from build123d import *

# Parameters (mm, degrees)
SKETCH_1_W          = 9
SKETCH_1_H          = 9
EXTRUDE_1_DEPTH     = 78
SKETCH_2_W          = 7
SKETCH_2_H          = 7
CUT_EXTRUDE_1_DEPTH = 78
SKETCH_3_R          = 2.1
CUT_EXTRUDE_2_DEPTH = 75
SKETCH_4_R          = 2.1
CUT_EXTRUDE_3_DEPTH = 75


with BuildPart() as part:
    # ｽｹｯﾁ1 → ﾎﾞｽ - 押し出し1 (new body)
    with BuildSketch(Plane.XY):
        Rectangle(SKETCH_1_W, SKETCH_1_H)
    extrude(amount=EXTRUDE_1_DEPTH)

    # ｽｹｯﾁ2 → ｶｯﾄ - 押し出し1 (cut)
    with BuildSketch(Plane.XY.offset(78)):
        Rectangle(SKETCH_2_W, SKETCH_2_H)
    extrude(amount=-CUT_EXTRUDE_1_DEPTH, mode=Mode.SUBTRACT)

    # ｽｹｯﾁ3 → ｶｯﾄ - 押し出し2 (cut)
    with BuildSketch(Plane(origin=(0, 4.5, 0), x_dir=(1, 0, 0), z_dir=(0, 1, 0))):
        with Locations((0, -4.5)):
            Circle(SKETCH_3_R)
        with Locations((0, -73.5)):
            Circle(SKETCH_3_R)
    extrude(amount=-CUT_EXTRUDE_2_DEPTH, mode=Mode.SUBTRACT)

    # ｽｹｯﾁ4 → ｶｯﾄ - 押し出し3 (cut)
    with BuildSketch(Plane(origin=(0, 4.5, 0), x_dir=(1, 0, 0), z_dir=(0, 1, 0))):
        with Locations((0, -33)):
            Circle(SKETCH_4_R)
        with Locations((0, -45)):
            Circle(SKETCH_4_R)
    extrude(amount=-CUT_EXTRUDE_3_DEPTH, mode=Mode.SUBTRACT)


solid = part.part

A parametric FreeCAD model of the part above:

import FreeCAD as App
import Part
import Sketcher
from FreeCAD import Vector


def add_polygon(sketch, points):
    """Adds a closed chain of lines whose ends are joined by coincident constraints."""
    first, n = sketch.GeometryCount, len(points)
    for a, b in zip(points, points[1:] + points[:1]):
        sketch.addGeometry(Part.LineSegment(App.Vector(*a, 0), App.Vector(*b, 0)), False)
    for i in range(n):
        sketch.addConstraint(Sketcher.Constraint("Coincident", first + i, 2, first + (i + 1) % n, 1))

doc = App.newDocument("Part")
params = doc.addObject("Spreadsheet::Sheet", "Params")
for row, (alias, value) in enumerate([
    ("sketch1_width", "9 mm"),
    ("pad1_length", "78 mm"),
    ("sketch2_width", "7 mm"),
    ("pocket1_length", "78 mm"),
    ("sketch3_diameter", "4.2 mm"),
    ("pocket2_length", "75 mm"),
    ("sketch4_diameter", "4.2 mm"),
    ("pocket3_length", "75 mm"),
], start=1):
    params.set(f"A{row}", alias)
    params.set(f"B{row}", "=" + value)
    params.setAlias(f"B{row}", alias)

body = doc.addObject("PartDesign::Body", "Body")

sketch1 = doc.addObject("Sketcher::SketchObject", "Sketch")
body.addObject(sketch1)
sketch1.AttachmentSupport = (doc.XY_Plane, [""])
sketch1.MapMode = "FlatFace"
add_polygon(sketch1, [(-4.5, 4.5), (-4.5, -4.5), (4.5, -4.5), (4.5, 4.5)])
sketch1.addConstraint([
    Sketcher.Constraint("Vertical", 0),
    Sketcher.Constraint("Horizontal", 1),
    Sketcher.Constraint("Vertical", 2),
    Sketcher.Constraint("Horizontal", 3),
    Sketcher.Constraint("Symmetric", 0, 2, 2, 2, -1, 1),
    Sketcher.Constraint("Equal", 3, 0),
    Sketcher.Constraint("DistanceX", 1, 1, 1, 2, 9.0),
])
sketch1.setExpression("Constraints[10]", "Params.sketch1_width")
pad1 = doc.addObject("PartDesign::Pad", "Pad")
body.addObject(pad1)
pad1.Profile = sketch1
pad1.setExpression("Length", "Params.pad1_length")

sketch2 = doc.addObject("Sketcher::SketchObject", "Sketch001")
body.addObject(sketch2)
sketch2.AttachmentSupport = (doc.XY_Plane, [""])
sketch2.MapMode = "FlatFace"
sketch2.AttachmentOffset = App.Placement(Vector(0, 0, 78), App.Rotation())
add_polygon(sketch2, [(-3.5, 3.5), (-3.5, -3.5), (3.5, -3.5), (3.5, 3.5)])
sketch2.addConstraint([
    Sketcher.Constraint("Vertical", 0),
    Sketcher.Constraint("Horizontal", 1),
    Sketcher.Constraint("Vertical", 2),
    Sketcher.Constraint("Horizontal", 3),
    Sketcher.Constraint("Symmetric", 0, 2, 2, 2, -1, 1),
    Sketcher.Constraint("Equal", 3, 0),
    Sketcher.Constraint("DistanceX", 1, 1, 1, 2, 7.0),
])
sketch2.setExpression("Constraints[10]", "Params.sketch2_width")
pocket1 = doc.addObject("PartDesign::Pocket", "Pocket")
body.addObject(pocket1)
pocket1.Profile = sketch2
pocket1.setExpression("Length", "Params.pocket1_length")

sketch3 = doc.addObject("Sketcher::SketchObject", "Sketch002")
body.addObject(sketch3)
sketch3.AttachmentSupport = (doc.XZ_Plane, [""])
sketch3.MapMode = "FlatFace"
sketch3.AttachmentOffset = App.Placement(Vector(0, 0, -4.5), App.Rotation())
sketch3.addGeometry([
    Part.Circle(Vector(0, 4.5, 0), Vector(0, 0, 1), 2.1),
    Part.Circle(Vector(0, 73.5, 0), Vector(0, 0, 1), 2.1),
], False)
sketch3.addConstraint([
    Sketcher.Constraint("Equal", 0, 1),
    Sketcher.Constraint("PointOnObject", 0, 3, -2),
    Sketcher.Constraint("PointOnObject", 1, 3, -2),
    Sketcher.Constraint("Diameter", 0, 4.2),
    Sketcher.Constraint("DistanceY", 0, 3, 1, 3, 69.0),
    Sketcher.Constraint("DistanceY", -1, 1, 0, 3, 4.5),
])
sketch3.setExpression("Constraints[3]", "Params.sketch3_diameter")
pocket2 = doc.addObject("PartDesign::Pocket", "Pocket001")
body.addObject(pocket2)
pocket2.Profile = sketch3
pocket2.setExpression("Length", "Params.pocket2_length")
pocket2.Reversed = True

sketch4 = doc.addObject("Sketcher::SketchObject", "Sketch003")
body.addObject(sketch4)
sketch4.AttachmentSupport = (doc.XZ_Plane, [""])
sketch4.MapMode = "FlatFace"
sketch4.AttachmentOffset = App.Placement(Vector(0, 0, -4.5), App.Rotation())
sketch4.addGeometry([
    Part.Circle(Vector(0, 33, 0), Vector(0, 0, 1), 2.1),
    Part.Circle(Vector(0, 45, 0), Vector(0, 0, 1), 2.1),
], False)
sketch4.addConstraint([
    Sketcher.Constraint("Equal", 0, 1),
    Sketcher.Constraint("PointOnObject", 0, 3, -2),
    Sketcher.Constraint("PointOnObject", 1, 3, -2),
    Sketcher.Constraint("Diameter", 0, 4.2),
    Sketcher.Constraint("DistanceY", -1, 1, 0, 3, 33.0),
    Sketcher.Constraint("DistanceY", -1, 1, 1, 3, 45.0),
])
sketch4.setExpression("Constraints[3]", "Params.sketch4_diameter")
pocket3 = doc.addObject("PartDesign::Pocket", "Pocket002")
body.addObject(pocket3)
pocket3.Profile = sketch4
pocket3.setExpression("Length", "Params.pocket3_length")
pocket3.Reversed = True

doc.recompute()
